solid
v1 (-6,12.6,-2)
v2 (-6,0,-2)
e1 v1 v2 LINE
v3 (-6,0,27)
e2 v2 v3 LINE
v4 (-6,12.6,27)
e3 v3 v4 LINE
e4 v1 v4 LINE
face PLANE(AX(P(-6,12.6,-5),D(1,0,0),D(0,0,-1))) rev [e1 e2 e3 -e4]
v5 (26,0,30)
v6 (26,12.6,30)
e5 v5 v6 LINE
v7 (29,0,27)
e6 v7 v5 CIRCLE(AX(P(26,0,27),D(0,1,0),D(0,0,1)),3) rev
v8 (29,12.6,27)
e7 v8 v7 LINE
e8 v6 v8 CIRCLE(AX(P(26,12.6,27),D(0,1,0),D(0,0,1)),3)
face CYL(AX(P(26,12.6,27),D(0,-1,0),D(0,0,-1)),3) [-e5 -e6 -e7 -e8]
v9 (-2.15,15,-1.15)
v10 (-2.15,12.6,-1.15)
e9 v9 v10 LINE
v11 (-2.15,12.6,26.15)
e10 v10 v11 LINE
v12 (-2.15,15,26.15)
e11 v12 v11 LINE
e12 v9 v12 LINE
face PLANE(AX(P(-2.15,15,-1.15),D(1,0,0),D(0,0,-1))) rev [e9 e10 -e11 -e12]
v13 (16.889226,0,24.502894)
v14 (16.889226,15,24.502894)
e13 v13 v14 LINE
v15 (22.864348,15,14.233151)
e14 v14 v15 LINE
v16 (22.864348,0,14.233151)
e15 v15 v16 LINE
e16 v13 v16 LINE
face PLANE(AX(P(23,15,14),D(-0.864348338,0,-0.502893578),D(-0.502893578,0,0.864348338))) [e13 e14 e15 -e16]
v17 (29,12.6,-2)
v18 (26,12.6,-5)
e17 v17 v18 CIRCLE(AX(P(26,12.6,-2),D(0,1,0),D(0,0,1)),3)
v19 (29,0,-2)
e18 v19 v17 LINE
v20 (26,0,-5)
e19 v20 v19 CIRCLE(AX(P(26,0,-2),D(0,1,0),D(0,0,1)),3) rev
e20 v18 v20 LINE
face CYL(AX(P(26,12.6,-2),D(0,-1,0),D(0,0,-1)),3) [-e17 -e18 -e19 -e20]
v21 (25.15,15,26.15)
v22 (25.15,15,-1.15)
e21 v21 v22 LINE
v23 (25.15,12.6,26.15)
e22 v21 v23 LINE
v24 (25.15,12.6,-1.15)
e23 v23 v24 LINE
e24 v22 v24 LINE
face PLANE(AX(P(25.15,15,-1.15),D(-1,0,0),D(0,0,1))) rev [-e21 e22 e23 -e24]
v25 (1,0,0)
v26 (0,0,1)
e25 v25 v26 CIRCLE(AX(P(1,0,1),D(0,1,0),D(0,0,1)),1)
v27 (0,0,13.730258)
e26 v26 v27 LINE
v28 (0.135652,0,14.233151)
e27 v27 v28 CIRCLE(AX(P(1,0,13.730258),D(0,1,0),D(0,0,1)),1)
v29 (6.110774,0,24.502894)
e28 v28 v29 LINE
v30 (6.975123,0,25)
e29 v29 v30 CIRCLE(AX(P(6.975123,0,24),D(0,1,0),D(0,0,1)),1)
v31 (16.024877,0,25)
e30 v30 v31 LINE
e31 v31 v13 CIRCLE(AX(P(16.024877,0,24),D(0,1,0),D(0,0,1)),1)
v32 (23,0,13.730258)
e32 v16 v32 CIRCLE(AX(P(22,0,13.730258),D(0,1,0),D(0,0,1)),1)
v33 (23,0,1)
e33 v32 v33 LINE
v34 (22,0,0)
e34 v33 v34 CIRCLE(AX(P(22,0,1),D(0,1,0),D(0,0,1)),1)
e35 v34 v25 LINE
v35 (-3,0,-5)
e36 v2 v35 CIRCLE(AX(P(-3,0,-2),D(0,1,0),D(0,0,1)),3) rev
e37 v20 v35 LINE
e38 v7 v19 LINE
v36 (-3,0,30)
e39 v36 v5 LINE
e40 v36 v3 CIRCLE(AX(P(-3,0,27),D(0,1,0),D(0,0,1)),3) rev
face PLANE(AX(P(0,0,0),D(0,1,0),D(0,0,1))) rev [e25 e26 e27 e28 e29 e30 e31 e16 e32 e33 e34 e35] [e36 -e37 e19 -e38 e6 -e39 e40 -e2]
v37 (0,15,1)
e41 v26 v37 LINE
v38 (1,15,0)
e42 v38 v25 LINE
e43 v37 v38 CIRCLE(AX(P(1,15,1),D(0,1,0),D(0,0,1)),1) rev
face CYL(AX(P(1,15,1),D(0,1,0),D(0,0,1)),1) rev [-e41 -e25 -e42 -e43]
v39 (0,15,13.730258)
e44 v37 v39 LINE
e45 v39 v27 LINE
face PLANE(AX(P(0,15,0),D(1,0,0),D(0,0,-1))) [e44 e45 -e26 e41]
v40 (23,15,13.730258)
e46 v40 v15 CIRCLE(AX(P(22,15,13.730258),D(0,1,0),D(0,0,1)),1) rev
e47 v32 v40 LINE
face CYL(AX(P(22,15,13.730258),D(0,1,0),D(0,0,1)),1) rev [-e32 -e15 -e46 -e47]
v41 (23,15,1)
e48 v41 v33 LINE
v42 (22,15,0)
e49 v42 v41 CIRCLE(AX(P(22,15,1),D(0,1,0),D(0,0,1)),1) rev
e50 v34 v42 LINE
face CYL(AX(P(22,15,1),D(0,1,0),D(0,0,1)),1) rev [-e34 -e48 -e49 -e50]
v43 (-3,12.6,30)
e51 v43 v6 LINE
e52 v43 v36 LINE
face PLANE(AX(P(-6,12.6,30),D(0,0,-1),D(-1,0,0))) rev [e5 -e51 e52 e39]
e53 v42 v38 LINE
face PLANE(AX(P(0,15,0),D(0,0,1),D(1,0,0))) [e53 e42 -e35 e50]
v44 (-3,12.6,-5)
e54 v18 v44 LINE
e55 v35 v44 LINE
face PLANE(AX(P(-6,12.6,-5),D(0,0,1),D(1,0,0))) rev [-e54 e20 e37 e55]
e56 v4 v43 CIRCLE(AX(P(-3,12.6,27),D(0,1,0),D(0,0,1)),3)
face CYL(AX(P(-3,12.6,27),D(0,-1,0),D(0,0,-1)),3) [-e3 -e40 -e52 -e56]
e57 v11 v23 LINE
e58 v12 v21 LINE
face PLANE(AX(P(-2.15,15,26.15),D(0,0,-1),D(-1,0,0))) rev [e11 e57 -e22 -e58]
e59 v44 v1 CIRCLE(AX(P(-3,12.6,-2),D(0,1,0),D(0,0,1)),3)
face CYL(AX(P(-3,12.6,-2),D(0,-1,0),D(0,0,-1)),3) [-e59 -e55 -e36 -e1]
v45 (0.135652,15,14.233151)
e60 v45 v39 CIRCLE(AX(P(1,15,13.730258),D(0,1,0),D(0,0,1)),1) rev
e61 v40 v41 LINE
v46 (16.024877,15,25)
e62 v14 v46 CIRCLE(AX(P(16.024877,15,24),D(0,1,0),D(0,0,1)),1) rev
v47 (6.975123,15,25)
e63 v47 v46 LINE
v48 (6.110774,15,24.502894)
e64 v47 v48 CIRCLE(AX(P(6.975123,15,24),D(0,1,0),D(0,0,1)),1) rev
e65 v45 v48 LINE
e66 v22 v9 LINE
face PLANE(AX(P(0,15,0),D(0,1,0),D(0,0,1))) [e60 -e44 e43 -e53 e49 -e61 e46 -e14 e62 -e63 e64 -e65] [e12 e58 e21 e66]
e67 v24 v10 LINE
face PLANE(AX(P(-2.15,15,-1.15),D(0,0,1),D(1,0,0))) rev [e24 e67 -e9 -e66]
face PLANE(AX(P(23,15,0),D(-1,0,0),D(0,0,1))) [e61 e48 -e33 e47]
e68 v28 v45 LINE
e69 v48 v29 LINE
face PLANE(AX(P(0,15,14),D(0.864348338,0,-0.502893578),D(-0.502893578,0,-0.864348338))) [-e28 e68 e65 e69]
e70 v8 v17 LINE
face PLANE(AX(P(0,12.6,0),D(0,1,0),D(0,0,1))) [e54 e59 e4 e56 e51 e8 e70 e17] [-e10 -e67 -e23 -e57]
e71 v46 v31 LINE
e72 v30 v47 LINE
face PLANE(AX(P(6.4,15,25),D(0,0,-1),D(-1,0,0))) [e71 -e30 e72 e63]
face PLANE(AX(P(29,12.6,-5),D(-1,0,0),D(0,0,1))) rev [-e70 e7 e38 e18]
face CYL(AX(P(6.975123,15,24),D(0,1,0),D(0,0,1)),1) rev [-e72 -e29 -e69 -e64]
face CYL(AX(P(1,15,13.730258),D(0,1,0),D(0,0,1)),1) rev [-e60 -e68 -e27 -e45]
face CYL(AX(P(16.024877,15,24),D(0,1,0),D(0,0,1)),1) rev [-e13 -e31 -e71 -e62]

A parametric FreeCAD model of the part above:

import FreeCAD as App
import Part
import Sketcher

V = App.Vector
Q = App.Units.Quantity


def edges_at(feature, points):
    """Names of the edges that pass closest to the given points."""
    edges = feature.Shape.Edges
    near = lambda p: min(range(len(edges)), key=lambda i: edges[i].distToShape(Part.Vertex(*p))[0])
    return sorted({f"Edge{near(p) + 1}" for p in points})

doc = App.newDocument("Part")
body = doc.addObject("PartDesign::Body", "Body")

# Sketch on XZ plane
sketch1 = body.newObject("Sketcher::SketchObject", "Sketch")
sketch1.AttachmentSupport = (doc.getObject("XZ_Plane"), [""])
sketch1.MapMode = "FlatFace"
sketch1.addGeometry(Part.LineSegment(V(-2, -1, 0), V(-2, 26, 0)), False)
sketch1.addGeometry(Part.LineSegment(V(-2, 26, 0), V(25, 26, 0)), False)
sketch1.addGeometry(Part.LineSegment(V(25, 26, 0), V(25, -1, 0)), False)
sketch1.addGeometry(Part.LineSegment(V(25, -1, 0), V(-2, -1, 0)), False)
sketch1.addGeometry(Part.LineSegment(V(0, 14, 0), V(0, 0, 0)), False)
sketch1.addGeometry(Part.LineSegment(V(0, 0, 0), V(23, 0, 0)), False)
sketch1.addGeometry(Part.LineSegment(V(23, 0, 0), V(23, 14, 0)), False)
sketch1.addGeometry(Part.LineSegment(V(23, 14, 0), V(17, 25, 0)), False)
sketch1.addGeometry(Part.LineSegment(V(17, 25, 0), V(6, 25, 0)), False)
sketch1.addGeometry(Part.LineSegment(V(6, 25, 0), V(0, 14, 0)), False)
sketch1.addConstraint(Sketcher.Constraint("Coincident", 0, 2, 1, 1))
sketch1.addConstraint(Sketcher.Constraint("Coincident", 1, 2, 2, 1))
sketch1.addConstraint(Sketcher.Constraint("Coincident", 2, 2, 3, 1))
sketch1.addConstraint(Sketcher.Constraint("Coincident", 3, 2, 0, 1))
sketch1.addConstraint(Sketcher.Constraint("Coincident", 4, 2, 5, 1))
sketch1.addConstraint(Sketcher.Constraint("Coincident", 5, 2, 6, 1))
sketch1.addConstraint(Sketcher.Constraint("Coincident", 6, 2, 7, 1))
sketch1.addConstraint(Sketcher.Constraint("Coincident", 7, 2, 8, 1))
sketch1.addConstraint(Sketcher.Constraint("Coincident", 8, 2, 9, 1))
sketch1.addConstraint(Sketcher.Constraint("Coincident", 9, 2, 4, 1))
sketch1.addConstraint(Sketcher.Constraint("Vertical", 0))
sketch1.addConstraint(Sketcher.Constraint("Horizontal", 1))
sketch1.addConstraint(Sketcher.Constraint("Vertical", 2))
sketch1.addConstraint(Sketcher.Constraint("Horizontal", 3))
sketch1.addConstraint(Sketcher.Constraint("Vertical", 4))
sketch1.addConstraint(Sketcher.Constraint("Horizontal", 5))
sketch1.addConstraint(Sketcher.Constraint("Vertical", 6))
sketch1.addConstraint(Sketcher.Constraint("Horizontal", 8))
sketch1.addConstraint(Sketcher.Constraint("Coincident", 4, 2, -1, 1))
sketch1.addConstraint(Sketcher.Constraint("Horizontal", 6, 2, 9, 2))
sketch1.addConstraint(Sketcher.Constraint("Equal", 3, 0))
sketch1.addConstraint(Sketcher.Constraint("Equal", 7, 9))
sketch1.addConstraint(Sketcher.Constraint("DistanceX", 5, 1, 5, 2, Q("23 mm")))
sketch1.addConstraint(Sketcher.Constraint("DistanceY", 4, 2, 4, 1, Q("14 mm")))
sketch1.addConstraint(Sketcher.Constraint("DistanceX", 1, 1, 1, 2, Q("27.3 mm")))
sketch1.addConstraint(Sketcher.Constraint("DistanceX", 8, 2, 8, 1, Q("10.2 mm")))
sketch1.addConstraint(Sketcher.Constraint("DistanceY", -1, 1, 7, 2, Q("25 mm")))
sketch1.addConstraint(Sketcher.Constraint("DistanceX", 0, 2, -1, 1, Q("2.15 mm")))
sketch1.addConstraint(Sketcher.Constraint("DistanceY", -1, 1, 0, 2, Q("26.15 mm")))
pad1 = body.newObject("PartDesign::Pad", "Pad")
pad1.Profile = sketch1
pad1.Length = 15
pad1.Reversed = True

# Sketch on XZ plane
sketch2 = body.newObject("Sketcher::SketchObject", "Sketch001")
sketch2.AttachmentSupport = (doc.getObject("XZ_Plane"), [""])
sketch2.MapMode = "FlatFace"
sketch2.addGeometry(Part.LineSegment(V(-6, -5, 0), V(-6, 30, 0)), False)
sketch2.addGeometry(Part.LineSegment(V(-6, 30, 0), V(29, 30, 0)), False)
sketch2.addGeometry(Part.LineSegment(V(29, 30, 0), V(29, -5, 0)), False)
sketch2.addGeometry(Part.LineSegment(V(29, -5, 0), V(-6, -5, 0)), False)
sketch2.addGeometry(Part.LineSegment(V(25, 26, 0), V(-2, 26, 0)), False)
sketch2.addGeometry(Part.LineSegment(V(-2, 26, 0), V(-2, -1, 0)), False)
sketch2.addGeometry(Part.LineSegment(V(-2, -1, 0), V(25, -1, 0)), False)
sketch2.addGeometry(Part.LineSegment(V(25, -1, 0), V(25, 26, 0)), False)
sketch2.addConstraint(Sketcher.Constraint("Coincident", 0, 2, 1, 1))
sketch2.addConstraint(Sketcher.Constraint("Coincident", 1, 2, 2, 1))
sketch2.addConstraint(Sketcher.Constraint("Coincident", 2, 2, 3, 1))
sketch2.addConstraint(Sketcher.Constraint("Coincident", 3, 2, 0, 1))
sketch2.addConstraint(Sketcher.Constraint("Coincident", 4, 2, 5, 1))
sketch2.addConstraint(Sketcher.Constraint("Coincident", 5, 2, 6, 1))
sketch2.addConstraint(Sketcher.Constraint("Coincident", 6, 2, 7, 1))
sketch2.addConstraint(Sketcher.Constraint("Coincident", 7, 2, 4, 1))
sketch2.addConstraint(Sketcher.Constraint("Vertical", 0))
sketch2.addConstraint(Sketcher.Constraint("Horizontal", 1))
sketch2.addConstraint(Sketcher.Constraint("Vertical", 2))
sketch2.addConstraint(Sketcher.Constraint("Horizontal", 3))
sketch2.addConstraint(Sketcher.Constraint("Horizontal", 4))
sketch2.addConstraint(Sketcher.Constraint("Vertical", 5))
sketch2.addConstraint(Sketcher.Constraint("Horizontal", 6))
sketch2.addConstraint(Sketcher.Constraint("Vertical", 7))
sketch2.addConstraint(Sketcher.Constraint("Equal", 3, 0))
sketch2.addConstraint(Sketcher.Constraint("Equal", 6, 5))
sketch2.addConstraint(Sketcher.Constraint("DistanceX", 1, 1, 1, 2, Q("35 mm")))
sketch2.addConstraint(Sketcher.Constraint("DistanceX", 4, 2, 4, 1, Q("27.3 mm")))
sketch2.addConstraint(Sketcher.Constraint("DistanceX", 0, 2, -1, 1, Q("6 mm")))
sketch2.addConstraint(Sketcher.Constraint("DistanceY", -1, 1, 0, 2, Q("30 mm")))
sketch2.addConstraint(Sketcher.Constraint("DistanceX", 4, 2, -1, 1, Q("2.15 mm")))
sketch2.addConstraint(Sketcher.Constraint("DistanceY", -1, 1, 4, 2, Q("26.15 mm")))
pad2 = body.newObject("PartDesign::Pad", "Pad001")
pad2.Profile = sketch2
pad2.Length = 12.6
pad2.Reversed = True
doc.recompute()

fillet = body.newObject("PartDesign::Fillet", "Fillet")
fillet.Base = (pad2, edges_at(pad2, [
    (0, 7.5, 0),
    (0, 7.5, 14),
    (6.4, 7.5, 25),
    (16.6, 7.5, 25),
    (23, 7.5, 14),
    (23, 7.5, 0),
]))
fillet.Radius = 1
doc.recompute()

fillet2 = body.newObject("PartDesign::Fillet", "Fillet001")
fillet2.Base = (fillet, edges_at(fillet, [
    (29, 6.3, 30),
    (29, 6.3, -5),
    (-6, 6.3, -5),
    (-6, 6.3, 30),
]))
fillet2.Radius = 3

doc.recompute()
